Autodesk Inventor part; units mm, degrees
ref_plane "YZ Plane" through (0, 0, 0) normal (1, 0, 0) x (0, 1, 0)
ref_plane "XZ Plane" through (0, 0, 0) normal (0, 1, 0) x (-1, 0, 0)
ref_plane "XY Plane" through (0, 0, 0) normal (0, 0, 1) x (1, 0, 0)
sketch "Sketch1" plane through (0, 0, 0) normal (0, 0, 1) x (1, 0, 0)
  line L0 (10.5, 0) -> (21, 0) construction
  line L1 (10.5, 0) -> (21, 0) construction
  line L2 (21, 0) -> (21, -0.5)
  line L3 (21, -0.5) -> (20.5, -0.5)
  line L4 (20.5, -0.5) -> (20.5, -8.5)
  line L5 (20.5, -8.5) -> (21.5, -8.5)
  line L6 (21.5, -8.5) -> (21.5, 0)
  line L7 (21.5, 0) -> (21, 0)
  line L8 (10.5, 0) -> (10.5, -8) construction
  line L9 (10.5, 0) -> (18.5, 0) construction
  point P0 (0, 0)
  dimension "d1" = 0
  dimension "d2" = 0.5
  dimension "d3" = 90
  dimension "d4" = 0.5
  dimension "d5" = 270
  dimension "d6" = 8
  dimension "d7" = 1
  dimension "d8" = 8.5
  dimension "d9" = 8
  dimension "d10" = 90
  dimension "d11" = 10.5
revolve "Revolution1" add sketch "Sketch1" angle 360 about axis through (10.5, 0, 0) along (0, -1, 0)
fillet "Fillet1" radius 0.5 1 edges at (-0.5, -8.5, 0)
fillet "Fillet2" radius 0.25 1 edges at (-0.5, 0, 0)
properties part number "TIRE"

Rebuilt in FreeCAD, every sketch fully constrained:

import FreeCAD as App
import Part
import Sketcher
Q = App.Units.Quantity


def edges_at(feature, points):
    """Names of the edges that pass closest to the given points."""
    edges = feature.Shape.Edges
    near = lambda p: min(range(len(edges)), key=lambda i: edges[i].distToShape(Part.Vertex(*p))[0])
    return sorted({f"Edge{near(p) + 1}" for p in points})


def add_polygon(sketch, points):
    """Adds a closed chain of lines whose ends are joined by coincident constraints."""
    first, n = sketch.GeometryCount, len(points)
    for a, b in zip(points, points[1:] + points[:1]):
        sketch.addGeometry(Part.LineSegment(App.Vector(*a, 0), App.Vector(*b, 0)), False)
    for i in range(n):
        sketch.addConstraint(Sketcher.Constraint("Coincident", first + i, 2, first + (i + 1) % n, 1))

doc = App.newDocument("Part")
body = doc.addObject("PartDesign::Body", "Body")

# Sketch on XY plane
sketch1 = doc.addObject("Sketcher::SketchObject", "Sketch")
body.addObject(sketch1)
sketch1.AttachmentSupport = (doc.XY_Plane, [""])
sketch1.MapMode = "FlatFace"
add_polygon(sketch1, [(21.5, 0), (21, 0), (21, -0.5), (20.5, -0.5), (20.5, -8.5), (21.5, -8.5)])  # lines 0-5
sketch1.addGeometry(Part.LineSegment(App.Vector(10.5, 0, 0), App.Vector(10.5, -8.5, 0)), True)  # axis
sketch1.addConstraint(Sketcher.Constraint("Horizontal", 0))
sketch1.addConstraint(Sketcher.Constraint("Vertical", 1))
sketch1.addConstraint(Sketcher.Constraint("Horizontal", 2))
sketch1.addConstraint(Sketcher.Constraint("Vertical", 3))
sketch1.addConstraint(Sketcher.Constraint("Horizontal", 4))
sketch1.addConstraint(Sketcher.Constraint("Vertical", 5))
sketch1.addConstraint(Sketcher.Constraint("Vertical", 6))
sketch1.addConstraint(Sketcher.Constraint("PointOnObject", 0, 2, -1))
sketch1.addConstraint(Sketcher.Constraint("PointOnObject", 6, 1, -1))
sketch1.addConstraint(Sketcher.Constraint("Horizontal", 4, 2, 6, 2))
sketch1.addConstraint(Sketcher.Constraint("Equal", 0, 2))
sketch1.addConstraint(Sketcher.Constraint("Equal", 2, 1))
sketch1.addConstraint(Sketcher.Constraint("DistanceX", 4, 1, 4, 2, Q("1 mm")))
sketch1.addConstraint(Sketcher.Constraint("DistanceY", 3, 2, 3, 1, Q("8 mm")))
sketch1.addConstraint(Sketcher.Constraint("DistanceX", -1, 1, 6, 1, Q("10.5 mm")))
sketch1.addConstraint(Sketcher.Constraint("DistanceX", 6, 1, 0, 2, Q("10.5 mm")))
revolution = doc.addObject("PartDesign::Revolution", "Revolution")
body.addObject(revolution)
revolution.Profile = sketch1
revolution.ReferenceAxis = (sketch1, ["Axis0"])
revolution.Angle = 360
doc.recompute()

fillet = doc.addObject("PartDesign::Fillet", "Fillet")
body.addObject(fillet)
fillet.Base = (revolution, edges_at(revolution, [(-0.5, -8.5, 0)]))
fillet.Radius = 0.5
doc.recompute()

fillet2 = doc.addObject("PartDesign::Fillet", "Fillet001")
body.addObject(fillet2)
fillet2.Base = (fillet, edges_at(fillet, [(-0.5, 0, 0)]))
fillet2.Radius = 0.25

doc.recompute()
